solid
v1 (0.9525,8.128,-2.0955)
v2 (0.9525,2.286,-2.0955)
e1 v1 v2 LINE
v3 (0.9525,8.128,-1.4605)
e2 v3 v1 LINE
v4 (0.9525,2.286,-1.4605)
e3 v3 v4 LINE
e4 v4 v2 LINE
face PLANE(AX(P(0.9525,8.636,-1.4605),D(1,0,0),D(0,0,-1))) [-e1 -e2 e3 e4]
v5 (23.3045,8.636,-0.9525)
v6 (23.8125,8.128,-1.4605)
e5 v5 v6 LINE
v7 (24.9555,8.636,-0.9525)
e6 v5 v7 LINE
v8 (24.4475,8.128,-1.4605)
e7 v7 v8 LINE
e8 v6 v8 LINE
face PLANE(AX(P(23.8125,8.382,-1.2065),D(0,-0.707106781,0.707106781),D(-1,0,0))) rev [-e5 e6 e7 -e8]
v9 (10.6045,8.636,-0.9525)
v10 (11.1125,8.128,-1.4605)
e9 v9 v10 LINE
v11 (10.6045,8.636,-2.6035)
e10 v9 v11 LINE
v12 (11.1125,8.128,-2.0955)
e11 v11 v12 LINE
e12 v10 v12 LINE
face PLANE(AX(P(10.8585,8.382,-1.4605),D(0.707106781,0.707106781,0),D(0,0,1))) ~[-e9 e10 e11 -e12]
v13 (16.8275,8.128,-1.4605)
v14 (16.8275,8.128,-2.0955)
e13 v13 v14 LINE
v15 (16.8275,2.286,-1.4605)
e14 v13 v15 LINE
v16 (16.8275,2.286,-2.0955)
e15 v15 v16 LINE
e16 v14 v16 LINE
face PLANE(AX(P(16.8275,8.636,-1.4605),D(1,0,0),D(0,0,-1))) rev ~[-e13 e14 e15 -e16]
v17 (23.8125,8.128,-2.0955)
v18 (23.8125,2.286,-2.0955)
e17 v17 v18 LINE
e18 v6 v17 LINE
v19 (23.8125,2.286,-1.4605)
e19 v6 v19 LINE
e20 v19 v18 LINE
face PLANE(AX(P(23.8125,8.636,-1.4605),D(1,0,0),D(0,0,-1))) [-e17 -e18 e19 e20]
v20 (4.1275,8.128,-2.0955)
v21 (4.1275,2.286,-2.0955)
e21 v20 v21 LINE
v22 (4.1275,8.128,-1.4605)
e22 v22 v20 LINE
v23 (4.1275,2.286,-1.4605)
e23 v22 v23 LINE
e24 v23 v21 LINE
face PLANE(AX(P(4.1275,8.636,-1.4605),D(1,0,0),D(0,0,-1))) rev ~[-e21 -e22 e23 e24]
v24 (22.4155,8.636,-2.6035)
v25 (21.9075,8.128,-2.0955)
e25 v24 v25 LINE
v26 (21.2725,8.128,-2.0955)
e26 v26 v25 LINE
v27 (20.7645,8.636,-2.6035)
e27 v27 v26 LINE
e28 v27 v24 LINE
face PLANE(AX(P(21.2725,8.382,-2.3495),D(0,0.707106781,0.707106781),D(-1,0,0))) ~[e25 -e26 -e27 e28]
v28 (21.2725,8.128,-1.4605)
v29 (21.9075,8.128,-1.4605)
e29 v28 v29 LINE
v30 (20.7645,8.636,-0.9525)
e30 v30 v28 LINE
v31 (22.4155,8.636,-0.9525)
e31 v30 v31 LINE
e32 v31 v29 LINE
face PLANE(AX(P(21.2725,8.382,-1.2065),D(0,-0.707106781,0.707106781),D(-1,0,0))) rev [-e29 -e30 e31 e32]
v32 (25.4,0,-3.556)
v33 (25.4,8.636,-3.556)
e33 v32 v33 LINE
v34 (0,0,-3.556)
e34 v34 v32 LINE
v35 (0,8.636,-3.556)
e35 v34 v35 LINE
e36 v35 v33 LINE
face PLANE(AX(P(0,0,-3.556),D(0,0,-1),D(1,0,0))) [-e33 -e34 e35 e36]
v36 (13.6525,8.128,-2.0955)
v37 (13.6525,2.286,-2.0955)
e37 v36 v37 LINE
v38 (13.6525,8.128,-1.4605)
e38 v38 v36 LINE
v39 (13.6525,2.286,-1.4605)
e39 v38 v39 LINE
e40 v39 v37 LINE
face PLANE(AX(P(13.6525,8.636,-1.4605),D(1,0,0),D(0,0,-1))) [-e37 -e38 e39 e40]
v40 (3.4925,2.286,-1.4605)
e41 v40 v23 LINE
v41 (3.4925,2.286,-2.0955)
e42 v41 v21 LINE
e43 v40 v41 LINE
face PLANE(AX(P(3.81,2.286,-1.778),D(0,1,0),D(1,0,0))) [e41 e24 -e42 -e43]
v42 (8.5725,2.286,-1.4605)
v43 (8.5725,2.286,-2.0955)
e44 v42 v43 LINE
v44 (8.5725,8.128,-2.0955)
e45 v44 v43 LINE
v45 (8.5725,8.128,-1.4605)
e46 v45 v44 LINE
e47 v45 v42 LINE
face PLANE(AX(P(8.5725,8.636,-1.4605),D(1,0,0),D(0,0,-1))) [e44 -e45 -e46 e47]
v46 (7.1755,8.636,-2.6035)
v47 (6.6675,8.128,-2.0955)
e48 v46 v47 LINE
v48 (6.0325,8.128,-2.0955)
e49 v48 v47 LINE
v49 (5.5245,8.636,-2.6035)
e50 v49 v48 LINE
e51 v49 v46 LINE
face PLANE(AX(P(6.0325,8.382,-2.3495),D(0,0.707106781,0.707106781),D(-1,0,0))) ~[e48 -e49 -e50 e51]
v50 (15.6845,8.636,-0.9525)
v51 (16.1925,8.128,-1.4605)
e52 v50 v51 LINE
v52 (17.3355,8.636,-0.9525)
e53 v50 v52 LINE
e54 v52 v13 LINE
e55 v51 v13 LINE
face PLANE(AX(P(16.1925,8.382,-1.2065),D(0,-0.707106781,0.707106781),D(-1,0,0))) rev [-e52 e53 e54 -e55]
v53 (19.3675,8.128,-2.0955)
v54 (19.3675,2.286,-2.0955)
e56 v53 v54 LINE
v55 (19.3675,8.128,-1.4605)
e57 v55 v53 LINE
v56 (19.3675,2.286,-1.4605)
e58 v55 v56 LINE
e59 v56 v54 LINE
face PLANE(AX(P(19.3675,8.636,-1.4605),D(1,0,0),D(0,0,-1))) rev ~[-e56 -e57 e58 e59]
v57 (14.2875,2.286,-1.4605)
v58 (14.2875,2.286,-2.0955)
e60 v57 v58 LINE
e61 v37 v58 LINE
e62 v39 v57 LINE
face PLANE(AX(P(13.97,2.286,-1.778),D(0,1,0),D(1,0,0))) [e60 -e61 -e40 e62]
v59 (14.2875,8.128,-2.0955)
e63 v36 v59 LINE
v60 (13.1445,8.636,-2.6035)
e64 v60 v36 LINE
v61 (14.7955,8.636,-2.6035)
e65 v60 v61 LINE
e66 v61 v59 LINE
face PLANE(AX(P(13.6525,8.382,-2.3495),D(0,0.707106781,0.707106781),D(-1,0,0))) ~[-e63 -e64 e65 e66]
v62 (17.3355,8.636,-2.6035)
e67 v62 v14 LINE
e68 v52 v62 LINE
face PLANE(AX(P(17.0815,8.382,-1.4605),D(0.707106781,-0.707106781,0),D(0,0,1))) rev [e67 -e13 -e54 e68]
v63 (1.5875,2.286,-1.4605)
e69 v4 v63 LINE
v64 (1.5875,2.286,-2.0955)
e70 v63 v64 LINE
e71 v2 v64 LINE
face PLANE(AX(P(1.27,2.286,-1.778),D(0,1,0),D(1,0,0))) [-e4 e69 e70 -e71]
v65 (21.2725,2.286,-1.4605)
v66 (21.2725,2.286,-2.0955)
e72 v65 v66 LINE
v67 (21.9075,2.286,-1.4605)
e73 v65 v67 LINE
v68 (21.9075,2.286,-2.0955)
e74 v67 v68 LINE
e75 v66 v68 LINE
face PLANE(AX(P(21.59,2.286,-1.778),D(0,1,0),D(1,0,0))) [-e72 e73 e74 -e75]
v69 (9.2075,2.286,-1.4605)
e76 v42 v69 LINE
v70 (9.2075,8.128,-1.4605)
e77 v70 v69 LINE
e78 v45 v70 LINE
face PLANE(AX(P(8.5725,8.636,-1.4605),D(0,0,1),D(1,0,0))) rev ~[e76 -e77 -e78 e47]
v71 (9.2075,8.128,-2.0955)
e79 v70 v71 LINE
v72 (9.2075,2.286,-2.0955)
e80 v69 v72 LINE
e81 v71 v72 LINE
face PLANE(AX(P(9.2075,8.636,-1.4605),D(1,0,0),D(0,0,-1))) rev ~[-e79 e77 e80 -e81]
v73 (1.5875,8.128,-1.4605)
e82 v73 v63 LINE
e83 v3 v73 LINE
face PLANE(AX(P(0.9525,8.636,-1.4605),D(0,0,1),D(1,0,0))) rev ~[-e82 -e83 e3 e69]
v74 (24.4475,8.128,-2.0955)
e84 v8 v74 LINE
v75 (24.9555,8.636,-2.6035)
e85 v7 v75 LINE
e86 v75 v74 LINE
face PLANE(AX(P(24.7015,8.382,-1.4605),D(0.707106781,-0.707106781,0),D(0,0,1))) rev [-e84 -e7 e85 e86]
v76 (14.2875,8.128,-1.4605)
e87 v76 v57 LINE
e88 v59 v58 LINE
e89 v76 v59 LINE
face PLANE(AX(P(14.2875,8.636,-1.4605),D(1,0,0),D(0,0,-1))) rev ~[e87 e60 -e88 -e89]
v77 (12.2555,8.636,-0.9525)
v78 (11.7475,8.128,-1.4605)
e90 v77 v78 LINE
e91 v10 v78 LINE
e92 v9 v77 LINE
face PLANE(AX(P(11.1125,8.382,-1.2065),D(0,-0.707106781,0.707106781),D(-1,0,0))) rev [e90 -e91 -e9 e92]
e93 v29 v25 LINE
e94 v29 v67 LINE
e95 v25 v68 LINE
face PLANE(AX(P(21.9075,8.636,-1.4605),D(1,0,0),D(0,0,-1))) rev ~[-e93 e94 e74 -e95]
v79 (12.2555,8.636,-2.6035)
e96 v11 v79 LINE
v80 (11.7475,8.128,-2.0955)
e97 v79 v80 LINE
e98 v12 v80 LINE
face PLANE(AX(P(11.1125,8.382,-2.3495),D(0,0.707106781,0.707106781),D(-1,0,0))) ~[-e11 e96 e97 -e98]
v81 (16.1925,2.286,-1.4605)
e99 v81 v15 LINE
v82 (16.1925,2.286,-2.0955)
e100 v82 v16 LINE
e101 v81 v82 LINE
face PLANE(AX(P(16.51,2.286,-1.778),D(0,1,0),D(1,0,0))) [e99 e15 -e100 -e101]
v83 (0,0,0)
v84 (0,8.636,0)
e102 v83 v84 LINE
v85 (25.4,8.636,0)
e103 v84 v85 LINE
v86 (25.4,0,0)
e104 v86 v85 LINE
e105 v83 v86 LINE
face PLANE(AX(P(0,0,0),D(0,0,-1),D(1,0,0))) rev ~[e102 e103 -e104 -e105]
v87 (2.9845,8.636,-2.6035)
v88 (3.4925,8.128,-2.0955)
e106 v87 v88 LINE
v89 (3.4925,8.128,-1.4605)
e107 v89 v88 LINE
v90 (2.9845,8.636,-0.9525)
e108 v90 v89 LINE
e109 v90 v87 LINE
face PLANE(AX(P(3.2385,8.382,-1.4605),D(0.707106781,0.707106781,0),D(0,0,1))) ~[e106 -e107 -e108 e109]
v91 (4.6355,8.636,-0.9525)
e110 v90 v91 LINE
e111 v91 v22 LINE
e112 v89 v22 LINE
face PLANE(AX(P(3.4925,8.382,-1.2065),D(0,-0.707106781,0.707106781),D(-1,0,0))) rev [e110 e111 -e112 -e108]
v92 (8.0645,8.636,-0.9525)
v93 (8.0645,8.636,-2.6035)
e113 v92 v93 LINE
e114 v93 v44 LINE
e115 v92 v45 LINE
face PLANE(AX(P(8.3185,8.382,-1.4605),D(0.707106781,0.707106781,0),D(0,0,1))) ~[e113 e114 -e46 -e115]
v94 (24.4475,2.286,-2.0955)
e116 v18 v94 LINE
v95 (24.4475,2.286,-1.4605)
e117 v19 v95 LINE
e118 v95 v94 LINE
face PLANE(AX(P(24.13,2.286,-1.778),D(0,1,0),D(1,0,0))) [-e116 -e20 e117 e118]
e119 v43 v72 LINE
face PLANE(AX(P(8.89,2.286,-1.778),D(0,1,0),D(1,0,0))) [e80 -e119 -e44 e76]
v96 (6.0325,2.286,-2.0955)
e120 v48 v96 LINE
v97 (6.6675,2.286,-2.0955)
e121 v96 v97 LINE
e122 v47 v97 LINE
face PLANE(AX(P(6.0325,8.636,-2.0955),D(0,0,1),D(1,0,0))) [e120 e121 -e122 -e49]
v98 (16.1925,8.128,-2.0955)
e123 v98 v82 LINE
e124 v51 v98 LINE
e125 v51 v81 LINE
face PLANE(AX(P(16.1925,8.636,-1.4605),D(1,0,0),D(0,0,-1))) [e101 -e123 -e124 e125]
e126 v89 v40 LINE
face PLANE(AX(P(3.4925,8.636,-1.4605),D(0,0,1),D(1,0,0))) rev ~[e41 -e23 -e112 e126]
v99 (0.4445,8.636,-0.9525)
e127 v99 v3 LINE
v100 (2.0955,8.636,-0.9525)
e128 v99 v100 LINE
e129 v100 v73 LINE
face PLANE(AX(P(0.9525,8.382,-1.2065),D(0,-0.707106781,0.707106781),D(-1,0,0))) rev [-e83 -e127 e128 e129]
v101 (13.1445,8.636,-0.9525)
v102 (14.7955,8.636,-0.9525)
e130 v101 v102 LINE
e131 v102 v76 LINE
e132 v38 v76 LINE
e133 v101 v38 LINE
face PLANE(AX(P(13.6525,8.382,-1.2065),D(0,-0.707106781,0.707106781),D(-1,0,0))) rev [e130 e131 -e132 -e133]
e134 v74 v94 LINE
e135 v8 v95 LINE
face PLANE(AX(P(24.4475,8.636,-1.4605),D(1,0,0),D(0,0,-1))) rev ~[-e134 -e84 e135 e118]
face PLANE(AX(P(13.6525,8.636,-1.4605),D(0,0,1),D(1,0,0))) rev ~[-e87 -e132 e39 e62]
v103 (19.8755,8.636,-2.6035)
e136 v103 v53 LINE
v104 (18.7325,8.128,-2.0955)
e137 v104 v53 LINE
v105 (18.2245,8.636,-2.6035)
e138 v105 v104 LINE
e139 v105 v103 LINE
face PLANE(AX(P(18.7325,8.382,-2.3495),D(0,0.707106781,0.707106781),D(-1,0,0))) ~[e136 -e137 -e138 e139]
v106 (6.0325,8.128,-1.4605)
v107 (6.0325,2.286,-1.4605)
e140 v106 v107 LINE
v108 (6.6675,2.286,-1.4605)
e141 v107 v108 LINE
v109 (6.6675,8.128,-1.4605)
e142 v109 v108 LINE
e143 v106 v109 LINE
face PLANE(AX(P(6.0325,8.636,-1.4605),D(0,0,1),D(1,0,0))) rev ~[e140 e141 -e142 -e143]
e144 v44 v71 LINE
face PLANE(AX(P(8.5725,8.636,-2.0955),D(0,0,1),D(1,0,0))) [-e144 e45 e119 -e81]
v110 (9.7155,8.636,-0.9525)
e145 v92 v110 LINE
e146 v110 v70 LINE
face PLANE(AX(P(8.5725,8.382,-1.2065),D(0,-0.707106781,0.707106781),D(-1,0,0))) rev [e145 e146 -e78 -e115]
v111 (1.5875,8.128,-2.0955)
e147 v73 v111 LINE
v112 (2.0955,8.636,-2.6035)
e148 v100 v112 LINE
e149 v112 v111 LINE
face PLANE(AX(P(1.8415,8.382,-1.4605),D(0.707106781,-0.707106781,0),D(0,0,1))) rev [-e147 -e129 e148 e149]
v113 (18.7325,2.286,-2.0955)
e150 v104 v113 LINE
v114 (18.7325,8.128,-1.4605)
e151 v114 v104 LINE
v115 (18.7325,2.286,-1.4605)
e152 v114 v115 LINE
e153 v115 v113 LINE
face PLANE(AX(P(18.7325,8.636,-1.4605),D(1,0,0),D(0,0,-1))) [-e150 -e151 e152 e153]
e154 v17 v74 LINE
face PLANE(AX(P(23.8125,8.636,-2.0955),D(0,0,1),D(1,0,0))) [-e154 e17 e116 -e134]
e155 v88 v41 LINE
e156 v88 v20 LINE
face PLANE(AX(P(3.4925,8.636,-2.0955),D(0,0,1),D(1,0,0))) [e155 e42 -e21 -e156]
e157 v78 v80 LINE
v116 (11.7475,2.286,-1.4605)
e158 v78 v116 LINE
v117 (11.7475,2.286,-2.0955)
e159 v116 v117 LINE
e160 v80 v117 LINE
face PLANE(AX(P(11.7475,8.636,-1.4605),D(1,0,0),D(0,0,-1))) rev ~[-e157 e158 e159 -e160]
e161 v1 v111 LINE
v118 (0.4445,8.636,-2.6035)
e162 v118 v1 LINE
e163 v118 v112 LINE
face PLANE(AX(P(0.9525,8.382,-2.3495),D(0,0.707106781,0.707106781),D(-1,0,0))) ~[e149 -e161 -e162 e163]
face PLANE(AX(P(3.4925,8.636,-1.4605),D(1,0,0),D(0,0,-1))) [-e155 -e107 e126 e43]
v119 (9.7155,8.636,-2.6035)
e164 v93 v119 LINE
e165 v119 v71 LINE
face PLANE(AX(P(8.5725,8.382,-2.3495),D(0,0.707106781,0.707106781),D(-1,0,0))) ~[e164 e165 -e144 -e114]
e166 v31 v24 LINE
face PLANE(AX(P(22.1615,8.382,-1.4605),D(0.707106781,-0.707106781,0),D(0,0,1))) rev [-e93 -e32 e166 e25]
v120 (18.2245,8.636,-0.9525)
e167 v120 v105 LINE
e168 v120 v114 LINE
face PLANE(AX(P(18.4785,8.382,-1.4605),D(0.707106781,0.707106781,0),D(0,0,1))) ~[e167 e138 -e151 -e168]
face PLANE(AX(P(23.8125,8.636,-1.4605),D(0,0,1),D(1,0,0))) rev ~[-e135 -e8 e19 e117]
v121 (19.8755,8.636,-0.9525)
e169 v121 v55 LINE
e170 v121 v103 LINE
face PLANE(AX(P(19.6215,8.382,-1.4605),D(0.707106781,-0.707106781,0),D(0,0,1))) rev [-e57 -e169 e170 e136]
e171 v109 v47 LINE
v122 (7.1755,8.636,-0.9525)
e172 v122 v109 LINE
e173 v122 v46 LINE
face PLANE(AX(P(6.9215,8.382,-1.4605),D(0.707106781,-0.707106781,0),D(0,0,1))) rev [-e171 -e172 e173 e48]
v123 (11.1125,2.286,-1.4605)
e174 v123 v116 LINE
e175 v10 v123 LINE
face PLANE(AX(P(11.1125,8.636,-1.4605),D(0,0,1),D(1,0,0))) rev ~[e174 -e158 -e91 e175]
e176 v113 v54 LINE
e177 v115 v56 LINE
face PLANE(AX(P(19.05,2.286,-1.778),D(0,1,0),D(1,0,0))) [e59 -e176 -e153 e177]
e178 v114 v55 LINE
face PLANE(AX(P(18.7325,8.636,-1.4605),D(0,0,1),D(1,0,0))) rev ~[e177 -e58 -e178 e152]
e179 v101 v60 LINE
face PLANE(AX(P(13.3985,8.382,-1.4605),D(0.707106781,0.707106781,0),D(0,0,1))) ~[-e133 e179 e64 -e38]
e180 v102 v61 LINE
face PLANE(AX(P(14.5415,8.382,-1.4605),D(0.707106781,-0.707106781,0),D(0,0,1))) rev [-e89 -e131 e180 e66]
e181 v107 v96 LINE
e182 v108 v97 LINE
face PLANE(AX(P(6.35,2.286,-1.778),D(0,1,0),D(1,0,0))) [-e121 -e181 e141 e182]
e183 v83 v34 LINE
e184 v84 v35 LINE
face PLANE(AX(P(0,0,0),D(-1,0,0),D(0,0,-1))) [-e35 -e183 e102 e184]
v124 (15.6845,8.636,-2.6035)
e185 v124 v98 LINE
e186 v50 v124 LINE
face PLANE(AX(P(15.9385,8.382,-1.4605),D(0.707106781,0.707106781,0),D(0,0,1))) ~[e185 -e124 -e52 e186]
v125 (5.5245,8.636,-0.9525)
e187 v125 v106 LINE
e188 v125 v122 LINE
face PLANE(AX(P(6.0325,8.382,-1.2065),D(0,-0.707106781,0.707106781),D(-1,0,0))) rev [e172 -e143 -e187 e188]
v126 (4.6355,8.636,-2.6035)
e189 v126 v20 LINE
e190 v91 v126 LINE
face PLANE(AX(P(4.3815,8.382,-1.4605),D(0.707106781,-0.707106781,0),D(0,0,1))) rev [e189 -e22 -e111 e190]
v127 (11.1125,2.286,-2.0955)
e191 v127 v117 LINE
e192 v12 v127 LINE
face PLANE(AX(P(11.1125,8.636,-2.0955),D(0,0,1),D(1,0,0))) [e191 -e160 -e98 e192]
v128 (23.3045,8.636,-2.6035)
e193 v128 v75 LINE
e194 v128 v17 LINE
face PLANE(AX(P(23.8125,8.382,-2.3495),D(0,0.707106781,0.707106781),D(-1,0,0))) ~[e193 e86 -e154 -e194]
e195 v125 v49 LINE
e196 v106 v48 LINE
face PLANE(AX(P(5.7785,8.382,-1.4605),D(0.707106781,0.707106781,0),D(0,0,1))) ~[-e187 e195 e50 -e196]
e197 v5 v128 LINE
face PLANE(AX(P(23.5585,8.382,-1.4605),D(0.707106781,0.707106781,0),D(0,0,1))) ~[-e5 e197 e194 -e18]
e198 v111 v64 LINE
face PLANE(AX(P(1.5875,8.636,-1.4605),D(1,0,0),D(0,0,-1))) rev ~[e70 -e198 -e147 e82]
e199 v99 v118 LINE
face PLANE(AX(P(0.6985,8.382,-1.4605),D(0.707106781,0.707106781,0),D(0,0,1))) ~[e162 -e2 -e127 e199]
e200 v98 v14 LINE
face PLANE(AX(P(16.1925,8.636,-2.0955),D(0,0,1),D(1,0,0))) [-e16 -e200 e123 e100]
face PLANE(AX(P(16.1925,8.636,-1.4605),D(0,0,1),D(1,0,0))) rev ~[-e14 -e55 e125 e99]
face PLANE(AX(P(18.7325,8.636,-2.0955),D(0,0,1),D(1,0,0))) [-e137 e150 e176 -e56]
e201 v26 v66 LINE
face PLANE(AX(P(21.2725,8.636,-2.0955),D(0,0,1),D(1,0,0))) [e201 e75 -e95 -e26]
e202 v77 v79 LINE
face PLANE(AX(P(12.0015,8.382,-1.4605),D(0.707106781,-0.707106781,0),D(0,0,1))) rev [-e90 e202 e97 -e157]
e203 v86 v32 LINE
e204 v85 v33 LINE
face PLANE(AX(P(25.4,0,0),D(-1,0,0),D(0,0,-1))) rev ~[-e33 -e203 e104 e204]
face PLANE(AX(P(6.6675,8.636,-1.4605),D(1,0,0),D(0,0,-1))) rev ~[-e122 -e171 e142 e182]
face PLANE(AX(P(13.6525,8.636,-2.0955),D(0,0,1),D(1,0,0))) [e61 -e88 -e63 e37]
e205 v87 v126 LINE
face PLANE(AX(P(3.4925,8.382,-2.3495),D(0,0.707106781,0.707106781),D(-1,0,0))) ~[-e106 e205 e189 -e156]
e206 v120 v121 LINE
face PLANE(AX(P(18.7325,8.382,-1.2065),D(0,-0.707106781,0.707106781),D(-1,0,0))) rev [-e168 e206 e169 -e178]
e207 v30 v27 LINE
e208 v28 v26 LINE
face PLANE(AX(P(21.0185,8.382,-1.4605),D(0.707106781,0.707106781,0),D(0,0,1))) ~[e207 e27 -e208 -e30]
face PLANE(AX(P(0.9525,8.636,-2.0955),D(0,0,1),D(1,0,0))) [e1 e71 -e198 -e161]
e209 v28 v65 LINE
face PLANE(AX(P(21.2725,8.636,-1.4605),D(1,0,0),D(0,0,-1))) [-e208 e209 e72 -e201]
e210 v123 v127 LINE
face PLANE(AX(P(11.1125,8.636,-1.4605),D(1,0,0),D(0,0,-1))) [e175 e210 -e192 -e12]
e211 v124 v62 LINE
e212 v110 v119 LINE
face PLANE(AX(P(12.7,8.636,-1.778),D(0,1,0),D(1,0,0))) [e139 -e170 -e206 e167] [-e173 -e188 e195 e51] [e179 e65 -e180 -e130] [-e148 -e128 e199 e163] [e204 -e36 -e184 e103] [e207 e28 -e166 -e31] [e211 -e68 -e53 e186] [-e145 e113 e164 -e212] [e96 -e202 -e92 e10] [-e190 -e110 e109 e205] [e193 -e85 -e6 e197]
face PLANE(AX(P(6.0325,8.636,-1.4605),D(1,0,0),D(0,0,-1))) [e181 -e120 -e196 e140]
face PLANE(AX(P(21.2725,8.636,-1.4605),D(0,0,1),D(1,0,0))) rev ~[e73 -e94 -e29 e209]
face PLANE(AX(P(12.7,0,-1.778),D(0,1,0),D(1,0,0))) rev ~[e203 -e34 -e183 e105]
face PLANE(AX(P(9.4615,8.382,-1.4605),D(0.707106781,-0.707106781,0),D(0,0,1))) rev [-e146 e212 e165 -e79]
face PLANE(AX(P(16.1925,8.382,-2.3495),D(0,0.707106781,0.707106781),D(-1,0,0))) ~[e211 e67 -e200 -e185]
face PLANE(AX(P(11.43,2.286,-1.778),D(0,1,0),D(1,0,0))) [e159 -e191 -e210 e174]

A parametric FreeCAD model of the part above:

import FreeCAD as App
import Part
import Sketcher
Q = App.Units.Quantity


def edges_at(feature, points):
    """Names of the edges that pass closest to the given points."""
    edges = feature.Shape.Edges
    near = lambda p: min(range(len(edges)), key=lambda i: edges[i].distToShape(Part.Vertex(*p))[0])
    return sorted({f"Edge{near(p) + 1}" for p in points})

doc = App.newDocument("Part")
body = doc.addObject("PartDesign::Body", "Body")

sketch1 = doc.addObject("Sketcher::SketchObject", "Sketch")
body.addObject(sketch1)
sketch1.AttachmentSupport = (doc.XZ_Plane, [""])
sketch1.MapMode = "FlatFace"
sketch1.addGeometry([
    Part.LineSegment(App.Vector(0, -3.6, 0), App.Vector(0, 0, 0)),
    Part.LineSegment(App.Vector(0, 0, 0), App.Vector(25.4, 0, 0)),
    Part.LineSegment(App.Vector(25.4, 0, 0), App.Vector(25.4, -3.6, 0)),
    Part.LineSegment(App.Vector(25.4, -3.6, 0), App.Vector(0, -3.6, 0)),
], False)
sketch1.addConstraint([
    Sketcher.Constraint("Coincident", 0, 2, 1, 1),
    Sketcher.Constraint("Coincident", 1, 2, 2, 1),
    Sketcher.Constraint("Coincident", 2, 2, 3, 1),
    Sketcher.Constraint("Coincident", 3, 2, 0, 1),
    Sketcher.Constraint("Vertical", 0),
    Sketcher.Constraint("Horizontal", 1),
    Sketcher.Constraint("Vertical", 2),
    Sketcher.Constraint("Horizontal", 3),
    Sketcher.Constraint("Coincident", 0, 2, -1, 1),
    Sketcher.Constraint("DistanceX", 1, 1, 1, 2, Q("1 in")),
    Sketcher.Constraint("DistanceY", 0, 1, 0, 2, Q("0.14 in")),
])
pad1 = doc.addObject("PartDesign::Pad", "Pad")
body.addObject(pad1)
pad1.Profile = sketch1
pad1.Length = Q("0.34 in")
pad1.Reversed = True

sketch2 = doc.addObject("Sketcher::SketchObject", "Sketch001")
body.addObject(sketch2)
sketch2.AttachmentSupport = (doc.XZ_Plane, [""])
sketch2.MapMode = "FlatFace"
sketch2.AttachmentOffset = App.Placement(App.Vector(0, 0, -0.34 * 25.4), App.Rotation())
sketch2.addGeometry([
    Part.LineSegment(App.Vector(1, -2.1, 0), App.Vector(1, -1.5, 0)),
    Part.LineSegment(App.Vector(1, -1.5, 0), App.Vector(1.6, -1.5, 0)),
    Part.LineSegment(App.Vector(1.6, -1.5, 0), App.Vector(1.6, -2.1, 0)),
    Part.LineSegment(App.Vector(1.6, -2.1, 0), App.Vector(1, -2.1, 0)),
], False)
sketch2.addConstraint([
    Sketcher.Constraint("Coincident", 0, 2, 1, 1),
    Sketcher.Constraint("Coincident", 1, 2, 2, 1),
    Sketcher.Constraint("Coincident", 2, 2, 3, 1),
    Sketcher.Constraint("Coincident", 3, 2, 0, 1),
    Sketcher.Constraint("Vertical", 0),
    Sketcher.Constraint("Horizontal", 1),
    Sketcher.Constraint("Vertical", 2),
    Sketcher.Constraint("Horizontal", 3),
    Sketcher.Constraint("Equal", 3, 0),
    Sketcher.Constraint("DistanceX", 1, 1, 1, 2, Q("0.025 in")),
    Sketcher.Constraint("DistanceX", -1, 1, 1, 2, Q("0.0625 in")),
    Sketcher.Constraint("DistanceY", 0, 2, -1, 1, Q("0.0575 in")),
])
pocket1 = doc.addObject("PartDesign::Pocket", "Pocket")
body.addObject(pocket1)
pocket1.Profile = sketch2
pocket1.Length = Q("0.25 in")
pocket1.Reversed = True
doc.recompute()

chamfer = doc.addObject("PartDesign::Chamfer", "Chamfer")
body.addObject(chamfer)
chamfer.Base = (pocket1, edges_at(pocket1, [
    (1.587, 8.636, -1.778),
    (1.27, 8.636, -2.095),
    (0.953, 8.636, -1.778),
    (1.27, 8.636, -1.46),
]))
chamfer.Size = Q("0.02 in")
doc.recompute()

linearpattern = doc.addObject("PartDesign::LinearPattern", "LinearPattern")
body.addObject(linearpattern)
linearpattern.Originals = [pocket1]
linearpattern.Direction = (doc.X_Axis, [""])
linearpattern.Mode = "offset"
linearpattern.Offset = Q("0.1 in")
linearpattern.Occurrences = 10
body.Tip = linearpattern
doc.recompute()

chamfer2 = doc.addObject("PartDesign::Chamfer", "Chamfer001")
body.addObject(chamfer2)
chamfer2.Base = (linearpattern, edges_at(linearpattern, [
    (4.128, 8.636, -1.778),
    (3.81, 8.636, -2.095),
    (3.493, 8.636, -1.778),
    (3.81, 8.636, -1.46),
    (6.668, 8.636, -1.778),
    (6.35, 8.636, -2.095),
    (6.032, 8.636, -1.778),
    (6.35, 8.636, -1.46),
    (9.207, 8.636, -1.778),
    (8.89, 8.636, -2.095),
    (8.572, 8.636, -1.778),
    (8.89, 8.636, -1.46),
    (11.748, 8.636, -1.778),
    (11.43, 8.636, -2.095),
    (11.113, 8.636, -1.778),
    (11.43, 8.636, -1.46),
    (14.287, 8.636, -1.778),
    (13.97, 8.636, -2.095),
    (13.652, 8.636, -1.778),
    (13.97, 8.636, -1.46),
    (16.828, 8.636, -1.778),
    (16.51, 8.636, -2.095),
    (16.192, 8.636, -1.778),
    (16.51, 8.636, -1.46),
    (19.367, 8.636, -1.778),
    (19.05, 8.636, -2.095),
    (18.733, 8.636, -1.778),
    (19.05, 8.636, -1.46),
    (21.907, 8.636, -1.778),
    (21.59, 8.636, -2.095),
    (21.273, 8.636, -1.778),
    (21.59, 8.636, -1.46),
    (24.448, 8.636, -1.778),
    (24.13, 8.636, -2.095),
    (23.812, 8.636, -1.778),
    (24.13, 8.636, -1.46),
]))
chamfer2.Size = Q("0.02 in")

doc.recompute()
